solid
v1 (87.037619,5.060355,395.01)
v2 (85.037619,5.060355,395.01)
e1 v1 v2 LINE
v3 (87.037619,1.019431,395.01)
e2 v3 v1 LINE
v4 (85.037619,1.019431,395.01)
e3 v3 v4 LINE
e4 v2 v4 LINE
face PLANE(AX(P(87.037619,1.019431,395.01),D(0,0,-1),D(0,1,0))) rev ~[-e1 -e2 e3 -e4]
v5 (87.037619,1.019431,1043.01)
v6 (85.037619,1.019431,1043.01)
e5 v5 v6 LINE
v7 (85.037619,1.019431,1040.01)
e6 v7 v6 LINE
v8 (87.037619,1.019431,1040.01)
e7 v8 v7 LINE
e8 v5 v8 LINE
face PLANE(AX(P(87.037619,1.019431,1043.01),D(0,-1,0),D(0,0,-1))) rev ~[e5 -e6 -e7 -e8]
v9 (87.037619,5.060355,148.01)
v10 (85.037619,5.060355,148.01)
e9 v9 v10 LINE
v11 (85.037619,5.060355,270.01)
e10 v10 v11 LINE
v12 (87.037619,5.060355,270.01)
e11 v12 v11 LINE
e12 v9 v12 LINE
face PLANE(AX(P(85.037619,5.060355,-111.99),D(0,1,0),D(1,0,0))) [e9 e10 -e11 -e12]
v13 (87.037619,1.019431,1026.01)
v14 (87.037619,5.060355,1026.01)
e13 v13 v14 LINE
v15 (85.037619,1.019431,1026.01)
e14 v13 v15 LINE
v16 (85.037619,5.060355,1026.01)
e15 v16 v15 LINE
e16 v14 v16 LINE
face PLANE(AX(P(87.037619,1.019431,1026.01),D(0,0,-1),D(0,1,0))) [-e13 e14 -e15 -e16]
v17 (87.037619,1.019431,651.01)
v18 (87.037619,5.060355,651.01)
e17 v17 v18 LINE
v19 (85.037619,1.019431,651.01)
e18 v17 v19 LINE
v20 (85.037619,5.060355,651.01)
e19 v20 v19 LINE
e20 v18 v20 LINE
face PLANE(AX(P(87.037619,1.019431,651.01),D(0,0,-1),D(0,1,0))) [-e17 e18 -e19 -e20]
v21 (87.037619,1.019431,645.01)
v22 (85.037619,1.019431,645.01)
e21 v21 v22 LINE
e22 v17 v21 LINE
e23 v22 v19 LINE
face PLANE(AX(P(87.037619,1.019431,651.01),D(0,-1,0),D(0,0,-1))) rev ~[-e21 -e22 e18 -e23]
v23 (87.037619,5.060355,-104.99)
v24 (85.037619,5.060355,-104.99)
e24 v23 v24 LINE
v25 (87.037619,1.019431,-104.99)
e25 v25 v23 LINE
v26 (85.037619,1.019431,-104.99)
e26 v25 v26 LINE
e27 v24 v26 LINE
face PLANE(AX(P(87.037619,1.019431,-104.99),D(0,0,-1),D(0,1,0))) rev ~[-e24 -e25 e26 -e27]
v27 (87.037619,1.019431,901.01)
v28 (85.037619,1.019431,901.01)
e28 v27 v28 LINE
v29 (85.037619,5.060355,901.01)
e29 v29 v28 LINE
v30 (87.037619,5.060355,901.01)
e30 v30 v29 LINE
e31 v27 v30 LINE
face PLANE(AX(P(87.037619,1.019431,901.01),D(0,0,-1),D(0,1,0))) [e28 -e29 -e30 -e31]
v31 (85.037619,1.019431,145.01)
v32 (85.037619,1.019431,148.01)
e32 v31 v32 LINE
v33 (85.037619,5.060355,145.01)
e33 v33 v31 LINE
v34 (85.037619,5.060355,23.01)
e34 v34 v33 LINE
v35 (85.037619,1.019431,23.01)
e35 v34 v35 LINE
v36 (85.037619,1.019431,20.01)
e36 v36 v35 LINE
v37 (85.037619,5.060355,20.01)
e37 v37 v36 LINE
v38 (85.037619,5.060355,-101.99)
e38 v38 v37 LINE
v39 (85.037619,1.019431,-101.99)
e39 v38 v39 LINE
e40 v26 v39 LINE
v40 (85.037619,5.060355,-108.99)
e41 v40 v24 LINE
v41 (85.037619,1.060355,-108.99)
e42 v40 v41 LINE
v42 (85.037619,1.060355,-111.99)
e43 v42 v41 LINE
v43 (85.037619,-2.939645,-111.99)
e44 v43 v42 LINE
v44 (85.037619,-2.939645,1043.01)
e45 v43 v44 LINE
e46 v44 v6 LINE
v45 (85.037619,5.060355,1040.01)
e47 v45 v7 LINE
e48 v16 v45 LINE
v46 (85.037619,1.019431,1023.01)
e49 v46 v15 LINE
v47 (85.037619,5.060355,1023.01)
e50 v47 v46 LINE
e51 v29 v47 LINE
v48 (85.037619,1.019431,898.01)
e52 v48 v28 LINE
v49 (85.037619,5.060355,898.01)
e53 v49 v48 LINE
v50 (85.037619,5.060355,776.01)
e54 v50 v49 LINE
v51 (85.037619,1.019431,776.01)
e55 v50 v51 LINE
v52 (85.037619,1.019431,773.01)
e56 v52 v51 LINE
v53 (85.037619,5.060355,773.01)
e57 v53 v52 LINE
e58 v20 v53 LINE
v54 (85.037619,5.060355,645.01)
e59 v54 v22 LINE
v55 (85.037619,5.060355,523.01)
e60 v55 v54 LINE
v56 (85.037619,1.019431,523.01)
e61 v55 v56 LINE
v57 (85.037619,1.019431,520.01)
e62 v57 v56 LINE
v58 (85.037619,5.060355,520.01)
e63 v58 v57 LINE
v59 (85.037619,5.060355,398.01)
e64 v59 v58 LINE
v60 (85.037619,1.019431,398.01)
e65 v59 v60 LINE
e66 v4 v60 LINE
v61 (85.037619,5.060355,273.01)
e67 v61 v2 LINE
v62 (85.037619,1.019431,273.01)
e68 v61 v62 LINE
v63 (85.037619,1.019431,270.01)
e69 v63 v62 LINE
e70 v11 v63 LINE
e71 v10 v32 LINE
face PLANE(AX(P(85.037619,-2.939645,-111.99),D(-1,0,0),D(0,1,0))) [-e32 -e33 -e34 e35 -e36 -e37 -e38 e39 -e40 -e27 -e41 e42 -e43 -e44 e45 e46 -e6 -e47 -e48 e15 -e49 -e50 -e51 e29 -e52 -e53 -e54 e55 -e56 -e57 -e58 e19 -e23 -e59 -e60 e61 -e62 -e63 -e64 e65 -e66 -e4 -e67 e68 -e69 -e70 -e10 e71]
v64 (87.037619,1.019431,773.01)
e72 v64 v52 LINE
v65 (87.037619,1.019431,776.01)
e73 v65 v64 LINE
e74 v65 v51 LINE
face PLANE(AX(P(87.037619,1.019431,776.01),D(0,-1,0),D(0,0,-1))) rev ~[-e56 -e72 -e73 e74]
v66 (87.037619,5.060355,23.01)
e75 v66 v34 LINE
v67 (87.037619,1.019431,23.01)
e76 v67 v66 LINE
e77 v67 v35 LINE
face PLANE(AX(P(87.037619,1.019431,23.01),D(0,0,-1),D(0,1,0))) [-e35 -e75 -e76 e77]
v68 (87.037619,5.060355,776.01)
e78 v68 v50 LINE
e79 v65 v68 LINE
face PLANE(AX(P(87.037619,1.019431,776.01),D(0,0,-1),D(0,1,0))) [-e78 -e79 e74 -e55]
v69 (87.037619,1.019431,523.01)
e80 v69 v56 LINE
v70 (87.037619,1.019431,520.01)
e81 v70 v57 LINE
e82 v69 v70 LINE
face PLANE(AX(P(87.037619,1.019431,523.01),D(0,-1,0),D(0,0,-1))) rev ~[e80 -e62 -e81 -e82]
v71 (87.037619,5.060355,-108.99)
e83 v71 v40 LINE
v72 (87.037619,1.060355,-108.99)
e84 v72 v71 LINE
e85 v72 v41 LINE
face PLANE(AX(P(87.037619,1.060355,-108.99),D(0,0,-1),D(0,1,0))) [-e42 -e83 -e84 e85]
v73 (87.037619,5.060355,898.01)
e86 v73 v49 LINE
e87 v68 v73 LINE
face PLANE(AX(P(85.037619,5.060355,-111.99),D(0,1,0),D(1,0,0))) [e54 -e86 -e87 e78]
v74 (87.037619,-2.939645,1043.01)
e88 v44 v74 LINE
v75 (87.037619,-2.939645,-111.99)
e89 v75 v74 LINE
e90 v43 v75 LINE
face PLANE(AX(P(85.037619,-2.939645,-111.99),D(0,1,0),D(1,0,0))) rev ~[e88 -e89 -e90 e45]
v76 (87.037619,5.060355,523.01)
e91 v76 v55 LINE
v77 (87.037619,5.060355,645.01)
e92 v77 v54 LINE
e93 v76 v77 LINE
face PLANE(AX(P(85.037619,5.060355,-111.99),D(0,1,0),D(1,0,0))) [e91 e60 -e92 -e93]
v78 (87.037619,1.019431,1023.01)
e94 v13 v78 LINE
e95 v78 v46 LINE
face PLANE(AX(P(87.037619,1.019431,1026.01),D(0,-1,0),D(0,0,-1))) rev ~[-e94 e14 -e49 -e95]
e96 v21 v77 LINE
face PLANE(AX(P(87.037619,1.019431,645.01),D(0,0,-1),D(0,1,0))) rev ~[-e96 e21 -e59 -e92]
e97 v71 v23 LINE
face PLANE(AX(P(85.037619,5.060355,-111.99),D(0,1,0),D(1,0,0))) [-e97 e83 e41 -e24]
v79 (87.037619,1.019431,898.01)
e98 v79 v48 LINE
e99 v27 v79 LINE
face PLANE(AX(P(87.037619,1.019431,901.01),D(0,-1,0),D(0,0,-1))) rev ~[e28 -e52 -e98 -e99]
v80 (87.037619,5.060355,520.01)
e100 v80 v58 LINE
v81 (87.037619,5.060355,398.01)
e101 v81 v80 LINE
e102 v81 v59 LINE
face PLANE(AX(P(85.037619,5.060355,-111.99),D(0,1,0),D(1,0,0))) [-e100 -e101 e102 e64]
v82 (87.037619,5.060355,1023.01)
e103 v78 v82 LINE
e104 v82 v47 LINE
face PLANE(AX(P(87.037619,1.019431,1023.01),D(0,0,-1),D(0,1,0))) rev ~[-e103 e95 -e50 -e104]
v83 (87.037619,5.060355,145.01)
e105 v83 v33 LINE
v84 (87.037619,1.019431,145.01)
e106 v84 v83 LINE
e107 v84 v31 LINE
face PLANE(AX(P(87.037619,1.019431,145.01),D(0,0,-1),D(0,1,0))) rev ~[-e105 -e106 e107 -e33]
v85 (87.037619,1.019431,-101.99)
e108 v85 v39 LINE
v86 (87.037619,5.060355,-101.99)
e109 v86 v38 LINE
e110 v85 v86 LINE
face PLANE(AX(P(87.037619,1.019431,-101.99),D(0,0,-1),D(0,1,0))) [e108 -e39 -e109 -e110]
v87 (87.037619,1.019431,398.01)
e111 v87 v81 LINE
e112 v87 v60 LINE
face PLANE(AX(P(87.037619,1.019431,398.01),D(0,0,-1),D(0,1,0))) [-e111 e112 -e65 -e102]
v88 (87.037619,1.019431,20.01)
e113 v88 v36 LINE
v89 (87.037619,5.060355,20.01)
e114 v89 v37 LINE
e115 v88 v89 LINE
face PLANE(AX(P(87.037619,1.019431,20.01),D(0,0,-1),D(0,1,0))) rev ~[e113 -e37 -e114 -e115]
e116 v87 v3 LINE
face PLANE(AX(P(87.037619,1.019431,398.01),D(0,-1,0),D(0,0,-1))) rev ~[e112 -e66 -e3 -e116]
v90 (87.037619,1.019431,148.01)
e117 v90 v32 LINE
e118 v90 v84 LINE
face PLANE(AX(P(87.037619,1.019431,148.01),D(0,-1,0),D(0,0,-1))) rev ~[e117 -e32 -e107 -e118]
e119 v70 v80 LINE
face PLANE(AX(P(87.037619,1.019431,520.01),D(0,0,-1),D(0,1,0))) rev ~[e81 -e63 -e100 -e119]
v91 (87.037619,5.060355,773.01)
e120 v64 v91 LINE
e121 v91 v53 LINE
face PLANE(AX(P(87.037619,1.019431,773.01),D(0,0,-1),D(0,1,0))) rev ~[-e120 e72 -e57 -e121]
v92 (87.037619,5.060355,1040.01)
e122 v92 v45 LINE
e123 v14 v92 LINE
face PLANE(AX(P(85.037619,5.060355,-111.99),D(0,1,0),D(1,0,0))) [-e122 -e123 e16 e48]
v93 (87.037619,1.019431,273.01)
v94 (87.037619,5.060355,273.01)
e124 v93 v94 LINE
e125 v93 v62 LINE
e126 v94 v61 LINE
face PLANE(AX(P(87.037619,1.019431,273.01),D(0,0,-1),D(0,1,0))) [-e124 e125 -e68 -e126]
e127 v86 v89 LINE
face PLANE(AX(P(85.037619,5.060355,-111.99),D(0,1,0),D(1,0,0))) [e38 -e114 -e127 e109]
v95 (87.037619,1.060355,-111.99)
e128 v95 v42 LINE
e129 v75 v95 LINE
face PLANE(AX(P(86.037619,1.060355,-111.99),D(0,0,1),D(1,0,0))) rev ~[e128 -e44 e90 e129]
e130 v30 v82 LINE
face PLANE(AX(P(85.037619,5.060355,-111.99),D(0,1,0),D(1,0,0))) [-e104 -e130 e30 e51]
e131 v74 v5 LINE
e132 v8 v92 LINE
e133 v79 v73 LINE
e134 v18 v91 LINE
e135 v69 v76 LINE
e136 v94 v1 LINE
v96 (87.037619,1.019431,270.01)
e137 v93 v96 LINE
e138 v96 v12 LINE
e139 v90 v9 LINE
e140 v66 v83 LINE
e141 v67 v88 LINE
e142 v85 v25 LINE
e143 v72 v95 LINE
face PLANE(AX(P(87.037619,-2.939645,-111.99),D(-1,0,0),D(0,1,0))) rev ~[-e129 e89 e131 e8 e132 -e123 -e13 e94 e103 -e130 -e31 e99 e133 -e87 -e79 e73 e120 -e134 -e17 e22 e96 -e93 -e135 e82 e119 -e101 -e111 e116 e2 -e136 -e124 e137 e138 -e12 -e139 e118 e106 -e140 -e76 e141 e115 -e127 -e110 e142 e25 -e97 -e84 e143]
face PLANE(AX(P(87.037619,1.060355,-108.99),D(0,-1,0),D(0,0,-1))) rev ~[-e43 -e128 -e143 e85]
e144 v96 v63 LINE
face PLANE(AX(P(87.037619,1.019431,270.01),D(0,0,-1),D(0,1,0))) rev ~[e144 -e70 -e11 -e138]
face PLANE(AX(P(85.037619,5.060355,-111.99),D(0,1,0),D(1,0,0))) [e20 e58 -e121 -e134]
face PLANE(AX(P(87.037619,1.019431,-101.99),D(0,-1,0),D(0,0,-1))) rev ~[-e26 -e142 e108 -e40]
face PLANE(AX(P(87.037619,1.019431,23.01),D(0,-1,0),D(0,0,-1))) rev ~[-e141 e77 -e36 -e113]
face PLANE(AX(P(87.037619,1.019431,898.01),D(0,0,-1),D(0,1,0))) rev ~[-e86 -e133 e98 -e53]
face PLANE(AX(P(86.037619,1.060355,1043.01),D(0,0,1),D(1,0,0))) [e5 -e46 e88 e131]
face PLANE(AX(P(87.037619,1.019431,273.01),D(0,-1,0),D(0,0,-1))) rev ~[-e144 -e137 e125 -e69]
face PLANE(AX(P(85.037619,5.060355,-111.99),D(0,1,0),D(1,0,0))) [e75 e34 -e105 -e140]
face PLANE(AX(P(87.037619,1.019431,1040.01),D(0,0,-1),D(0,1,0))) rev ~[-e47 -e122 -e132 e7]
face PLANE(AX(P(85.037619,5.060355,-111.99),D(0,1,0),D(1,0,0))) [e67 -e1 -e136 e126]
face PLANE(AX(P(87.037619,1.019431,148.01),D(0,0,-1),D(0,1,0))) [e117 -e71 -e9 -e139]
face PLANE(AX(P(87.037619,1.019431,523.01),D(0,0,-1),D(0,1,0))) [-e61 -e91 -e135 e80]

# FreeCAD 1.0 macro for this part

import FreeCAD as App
import Part
import Sketcher
from FreeCAD import Vector
Q = App.Units.Quantity


def add_polygon(sketch, points):
    """Adds a closed chain of lines whose ends are joined by coincident constraints."""
    first, n = sketch.GeometryCount, len(points)
    for a, b in zip(points, points[1:] + points[:1]):
        sketch.addGeometry(Part.LineSegment(App.Vector(*a, 0), App.Vector(*b, 0)), False)
    for i in range(n):
        sketch.addConstraint(Sketcher.Constraint("Coincident", first + i, 2, first + (i + 1) % n, 1))

doc = App.newDocument("Part")
body = doc.addObject("PartDesign::Body", "Body")

# Sketch on XY plane
sketch1 = body.newObject("Sketcher::SketchObject", "Sketch")
sketch1.AttachmentSupport = (doc.getObject("XY_Plane"), [""])
sketch1.MapMode = "FlatFace"
sketch1.AttachmentOffset = App.Placement(Vector(0, 0, -111.99), App.Rotation())
add_polygon(sketch1, [(85.037619, 5.060355), (85.037619, -2.939645), (87.037619, -2.939645), (87.037619, 5.060355)])  # lines 0-3
sketch1.addConstraint([
    Sketcher.Constraint("Vertical", 0),
    Sketcher.Constraint("Horizontal", 1),
    Sketcher.Constraint("Vertical", 2),
    Sketcher.Constraint("Horizontal", 3),
    Sketcher.Constraint("DistanceX", 1, 1, 1, 2, Q("2 mm")),
    Sketcher.Constraint("DistanceY", 0, 2, 0, 1, Q("8 mm")),
    Sketcher.Constraint("DistanceX", -1, 1, 0, 2, Q("85.037619 mm")),
    Sketcher.Constraint("DistanceY", 0, 2, -1, 1, Q("2.939645 mm")),
])
pad1 = body.newObject("PartDesign::Pad", "Pad")
pad1.Profile = sketch1
pad1.Length = 1155

# Sketch on YZ plane
sketch2 = body.newObject("Sketcher::SketchObject", "Sketch001")
sketch2.AttachmentSupport = (doc.getObject("YZ_Plane"), [""])
sketch2.MapMode = "FlatFace"
sketch2.AttachmentOffset = App.Placement(Vector(0, 0, 87.037619), App.Rotation())
add_polygon(sketch2, [(5.060355, 1043.01), (1.019431, 1043.01), (1.019431, 1040.01), (5.060355, 1040.01)])  # lines 0-3
add_polygon(sketch2, [(5.060355, 1026.01), (1.019431, 1026.01), (1.019431, 1023.01), (5.060355, 1023.01)])  # lines 4-7
add_polygon(sketch2, [(5.060355, 901.01), (1.019431, 901.01), (1.019431, 898.01), (5.060355, 898.01)])  # lines 8-11
add_polygon(sketch2, [(5.060355, 776.01), (1.019431, 776.01), (1.019431, 773.01), (5.060355, 773.01)])  # lines 12-15
add_polygon(sketch2, [(5.060355, 651.01), (1.019431, 651.01), (1.019431, 645.01), (5.060355, 645.01)])  # lines 16-19
add_polygon(sketch2, [(5.060355, 523.01), (1.019431, 523.01), (1.019431, 520.01), (5.060355, 520.01)])  # lines 20-23
add_polygon(sketch2, [(5.060355, 398.01), (1.019431, 398.01), (1.019431, 395.01), (5.060355, 395.01)])  # lines 24-27
add_polygon(sketch2, [(5.060355, 273.01), (1.019431, 273.01), (1.019431, 270.01), (5.060355, 270.01)])  # lines 28-31
add_polygon(sketch2, [(5.060355, 148.01), (1.019431, 148.01), (1.019431, 145.01), (5.060355, 145.01)])  # lines 32-35
add_polygon(sketch2, [(5.060355, 23.01), (1.019431, 23.01), (1.019431, 20.01), (5.060355, 20.01)])  # lines 36-39
add_polygon(sketch2, [(5.060355, -101.99), (1.019431, -101.99), (1.019431, -104.99), (5.060355, -104.99)])  # lines 40-43
add_polygon(sketch2, [(5.060355, -108.99), (1.060355, -108.99), (1.060355, -111.99), (5.060355, -111.99)])  # lines 44-47
sketch2.addConstraint([
    Sketcher.Constraint("Horizontal", 0),
    Sketcher.Constraint("Vertical", 1),
    Sketcher.Constraint("Horizontal", 2),
    Sketcher.Constraint("Vertical", 3),
    Sketcher.Constraint("Horizontal", 4),
    Sketcher.Constraint("Vertical", 5),
    Sketcher.Constraint("Horizontal", 6),
    Sketcher.Constraint("Vertical", 7),
    Sketcher.Constraint("Horizontal", 8),
    Sketcher.Constraint("Vertical", 9),
    Sketcher.Constraint("Horizontal", 10),
    Sketcher.Constraint("Vertical", 11),
    Sketcher.Constraint("Horizontal", 12),
    Sketcher.Constraint("Vertical", 13),
    Sketcher.Constraint("Horizontal", 14),
    Sketcher.Constraint("Vertical", 15),
    Sketcher.Constraint("Horizontal", 16),
    Sketcher.Constraint("Vertical", 17),
    Sketcher.Constraint("Horizontal", 18),
    Sketcher.Constraint("Vertical", 19),
    Sketcher.Constraint("Horizontal", 20),
    Sketcher.Constraint("Vertical", 21),
    Sketcher.Constraint("Horizontal", 22),
    Sketcher.Constraint("Vertical", 23),
    Sketcher.Constraint("Horizontal", 24),
    Sketcher.Constraint("Vertical", 25),
    Sketcher.Constraint("Horizontal", 26),
    Sketcher.Constraint("Vertical", 27),
    Sketcher.Constraint("Horizontal", 28),
    Sketcher.Constraint("Vertical", 29),
    Sketcher.Constraint("Horizontal", 30),
    Sketcher.Constraint("Vertical", 31),
    Sketcher.Constraint("Horizontal", 32),
    Sketcher.Constraint("Vertical", 33),
    Sketcher.Constraint("Horizontal", 34),
    Sketcher.Constraint("Vertical", 35),
    Sketcher.Constraint("Horizontal", 36),
    Sketcher.Constraint("Vertical", 37),
    Sketcher.Constraint("Horizontal", 38),
    Sketcher.Constraint("Vertical", 39),
    Sketcher.Constraint("Horizontal", 40),
    Sketcher.Constraint("Vertical", 41),
    Sketcher.Constraint("Horizontal", 42),
    Sketcher.Constraint("Vertical", 43),
    Sketcher.Constraint("Horizontal", 44),
    Sketcher.Constraint("Vertical", 45),
    Sketcher.Constraint("Horizontal", 46),
    Sketcher.Constraint("Vertical", 47),
    Sketcher.Constraint("Vertical", 1, 2, 4, 2),
    Sketcher.Constraint("Vertical", 3, 2, 6, 2),
    Sketcher.Constraint("Vertical", 5, 2, 8, 2),
    Sketcher.Constraint("Vertical", 7, 2, 10, 2),
    Sketcher.Constraint("Vertical", 9, 2, 12, 2),
    Sketcher.Constraint("Vertical", 11, 2, 14, 2),
    Sketcher.Constraint("Vertical", 13, 2, 16, 2),
    Sketcher.Constraint("Vertical", 15, 2, 18, 2),
    Sketcher.Constraint("Vertical", 17, 2, 20, 2),
    Sketcher.Constraint("Vertical", 19, 2, 22, 2),
    Sketcher.Constraint("Vertical", 21, 2, 24, 2),
    Sketcher.Constraint("Vertical", 23, 2, 26, 2),
    Sketcher.Constraint("Vertical", 25, 2, 28, 2),
    Sketcher.Constraint("Vertical", 27, 2, 30, 2),
    Sketcher.Constraint("Vertical", 29, 2, 32, 2),
    Sketcher.Constraint("Vertical", 31, 2, 34, 2),
    Sketcher.Constraint("Vertical", 33, 2, 36, 2),
    Sketcher.Constraint("Vertical", 35, 2, 38, 2),
    Sketcher.Constraint("Vertical", 37, 2, 40, 2),
    Sketcher.Constraint("Vertical", 39, 2, 42, 2),
    Sketcher.Constraint("Vertical", 43, 2, 46, 2),
    Sketcher.Constraint("Equal", 3, 5),
    Sketcher.Constraint("Equal", 7, 9),
    Sketcher.Constraint("Equal", 11, 13),
    Sketcher.Constraint("Equal", 15, 21),
    Sketcher.Constraint("Equal", 23, 25),
    Sketcher.Constraint("Equal", 27, 29),
    Sketcher.Constraint("Equal", 31, 33),
    Sketcher.Constraint("Equal", 35, 37),
    Sketcher.Constraint("Equal", 39, 41),
    Sketcher.Constraint("Equal", 43, 45),
    Sketcher.Constraint("DistanceX", 44, 2, 44, 1, Q("4 mm")),
    Sketcher.Constraint("DistanceY", 1, 2, 1, 1, Q("3 mm")),
    Sketcher.Constraint("DistanceY", 17, 2, 17, 1, Q("6 mm")),
    Sketcher.Constraint("DistanceY", 4, 2, 1, 2, Q("14 mm")),
    Sketcher.Constraint("DistanceY", 8, 2, 5, 2, Q("122 mm")),
    Sketcher.Constraint("DistanceY", 12, 2, 9, 2, Q("122 mm")),
    Sketcher.Constraint("DistanceY", 16, 2, 13, 2, Q("122 mm")),
    Sketcher.Constraint("DistanceY", 20, 2, 17, 2, Q("122 mm")),
    Sketcher.Constraint("DistanceY", 24, 2, 21, 2, Q("122 mm")),
    Sketcher.Constraint("DistanceY", 28, 2, 25, 2, Q("122 mm")),
    Sketcher.Constraint("DistanceY", 32, 2, 29, 2, Q("122 mm")),
    Sketcher.Constraint("DistanceY", 36, 2, 33, 2, Q("122 mm")),
    Sketcher.Constraint("DistanceY", 40, 2, 37, 2, Q("122 mm")),
    Sketcher.Constraint("DistanceY", 44, 2, 41, 2, Q("4 mm")),
    Sketcher.Constraint("DistanceY", -1, 1, 0, 2, Q("1043.01 mm")),
    Sketcher.Constraint("DistanceX", 0, 2, 0, 1, Q("4.040924 mm")),
    Sketcher.Constraint("DistanceX", -1, 1, 0, 2, Q("1.019431 mm")),
])
pocket1 = body.newObject("PartDesign::Pocket", "Pocket")
pocket1.Profile = sketch2
pocket1.Type = "ThroughAll"

doc.recompute()
